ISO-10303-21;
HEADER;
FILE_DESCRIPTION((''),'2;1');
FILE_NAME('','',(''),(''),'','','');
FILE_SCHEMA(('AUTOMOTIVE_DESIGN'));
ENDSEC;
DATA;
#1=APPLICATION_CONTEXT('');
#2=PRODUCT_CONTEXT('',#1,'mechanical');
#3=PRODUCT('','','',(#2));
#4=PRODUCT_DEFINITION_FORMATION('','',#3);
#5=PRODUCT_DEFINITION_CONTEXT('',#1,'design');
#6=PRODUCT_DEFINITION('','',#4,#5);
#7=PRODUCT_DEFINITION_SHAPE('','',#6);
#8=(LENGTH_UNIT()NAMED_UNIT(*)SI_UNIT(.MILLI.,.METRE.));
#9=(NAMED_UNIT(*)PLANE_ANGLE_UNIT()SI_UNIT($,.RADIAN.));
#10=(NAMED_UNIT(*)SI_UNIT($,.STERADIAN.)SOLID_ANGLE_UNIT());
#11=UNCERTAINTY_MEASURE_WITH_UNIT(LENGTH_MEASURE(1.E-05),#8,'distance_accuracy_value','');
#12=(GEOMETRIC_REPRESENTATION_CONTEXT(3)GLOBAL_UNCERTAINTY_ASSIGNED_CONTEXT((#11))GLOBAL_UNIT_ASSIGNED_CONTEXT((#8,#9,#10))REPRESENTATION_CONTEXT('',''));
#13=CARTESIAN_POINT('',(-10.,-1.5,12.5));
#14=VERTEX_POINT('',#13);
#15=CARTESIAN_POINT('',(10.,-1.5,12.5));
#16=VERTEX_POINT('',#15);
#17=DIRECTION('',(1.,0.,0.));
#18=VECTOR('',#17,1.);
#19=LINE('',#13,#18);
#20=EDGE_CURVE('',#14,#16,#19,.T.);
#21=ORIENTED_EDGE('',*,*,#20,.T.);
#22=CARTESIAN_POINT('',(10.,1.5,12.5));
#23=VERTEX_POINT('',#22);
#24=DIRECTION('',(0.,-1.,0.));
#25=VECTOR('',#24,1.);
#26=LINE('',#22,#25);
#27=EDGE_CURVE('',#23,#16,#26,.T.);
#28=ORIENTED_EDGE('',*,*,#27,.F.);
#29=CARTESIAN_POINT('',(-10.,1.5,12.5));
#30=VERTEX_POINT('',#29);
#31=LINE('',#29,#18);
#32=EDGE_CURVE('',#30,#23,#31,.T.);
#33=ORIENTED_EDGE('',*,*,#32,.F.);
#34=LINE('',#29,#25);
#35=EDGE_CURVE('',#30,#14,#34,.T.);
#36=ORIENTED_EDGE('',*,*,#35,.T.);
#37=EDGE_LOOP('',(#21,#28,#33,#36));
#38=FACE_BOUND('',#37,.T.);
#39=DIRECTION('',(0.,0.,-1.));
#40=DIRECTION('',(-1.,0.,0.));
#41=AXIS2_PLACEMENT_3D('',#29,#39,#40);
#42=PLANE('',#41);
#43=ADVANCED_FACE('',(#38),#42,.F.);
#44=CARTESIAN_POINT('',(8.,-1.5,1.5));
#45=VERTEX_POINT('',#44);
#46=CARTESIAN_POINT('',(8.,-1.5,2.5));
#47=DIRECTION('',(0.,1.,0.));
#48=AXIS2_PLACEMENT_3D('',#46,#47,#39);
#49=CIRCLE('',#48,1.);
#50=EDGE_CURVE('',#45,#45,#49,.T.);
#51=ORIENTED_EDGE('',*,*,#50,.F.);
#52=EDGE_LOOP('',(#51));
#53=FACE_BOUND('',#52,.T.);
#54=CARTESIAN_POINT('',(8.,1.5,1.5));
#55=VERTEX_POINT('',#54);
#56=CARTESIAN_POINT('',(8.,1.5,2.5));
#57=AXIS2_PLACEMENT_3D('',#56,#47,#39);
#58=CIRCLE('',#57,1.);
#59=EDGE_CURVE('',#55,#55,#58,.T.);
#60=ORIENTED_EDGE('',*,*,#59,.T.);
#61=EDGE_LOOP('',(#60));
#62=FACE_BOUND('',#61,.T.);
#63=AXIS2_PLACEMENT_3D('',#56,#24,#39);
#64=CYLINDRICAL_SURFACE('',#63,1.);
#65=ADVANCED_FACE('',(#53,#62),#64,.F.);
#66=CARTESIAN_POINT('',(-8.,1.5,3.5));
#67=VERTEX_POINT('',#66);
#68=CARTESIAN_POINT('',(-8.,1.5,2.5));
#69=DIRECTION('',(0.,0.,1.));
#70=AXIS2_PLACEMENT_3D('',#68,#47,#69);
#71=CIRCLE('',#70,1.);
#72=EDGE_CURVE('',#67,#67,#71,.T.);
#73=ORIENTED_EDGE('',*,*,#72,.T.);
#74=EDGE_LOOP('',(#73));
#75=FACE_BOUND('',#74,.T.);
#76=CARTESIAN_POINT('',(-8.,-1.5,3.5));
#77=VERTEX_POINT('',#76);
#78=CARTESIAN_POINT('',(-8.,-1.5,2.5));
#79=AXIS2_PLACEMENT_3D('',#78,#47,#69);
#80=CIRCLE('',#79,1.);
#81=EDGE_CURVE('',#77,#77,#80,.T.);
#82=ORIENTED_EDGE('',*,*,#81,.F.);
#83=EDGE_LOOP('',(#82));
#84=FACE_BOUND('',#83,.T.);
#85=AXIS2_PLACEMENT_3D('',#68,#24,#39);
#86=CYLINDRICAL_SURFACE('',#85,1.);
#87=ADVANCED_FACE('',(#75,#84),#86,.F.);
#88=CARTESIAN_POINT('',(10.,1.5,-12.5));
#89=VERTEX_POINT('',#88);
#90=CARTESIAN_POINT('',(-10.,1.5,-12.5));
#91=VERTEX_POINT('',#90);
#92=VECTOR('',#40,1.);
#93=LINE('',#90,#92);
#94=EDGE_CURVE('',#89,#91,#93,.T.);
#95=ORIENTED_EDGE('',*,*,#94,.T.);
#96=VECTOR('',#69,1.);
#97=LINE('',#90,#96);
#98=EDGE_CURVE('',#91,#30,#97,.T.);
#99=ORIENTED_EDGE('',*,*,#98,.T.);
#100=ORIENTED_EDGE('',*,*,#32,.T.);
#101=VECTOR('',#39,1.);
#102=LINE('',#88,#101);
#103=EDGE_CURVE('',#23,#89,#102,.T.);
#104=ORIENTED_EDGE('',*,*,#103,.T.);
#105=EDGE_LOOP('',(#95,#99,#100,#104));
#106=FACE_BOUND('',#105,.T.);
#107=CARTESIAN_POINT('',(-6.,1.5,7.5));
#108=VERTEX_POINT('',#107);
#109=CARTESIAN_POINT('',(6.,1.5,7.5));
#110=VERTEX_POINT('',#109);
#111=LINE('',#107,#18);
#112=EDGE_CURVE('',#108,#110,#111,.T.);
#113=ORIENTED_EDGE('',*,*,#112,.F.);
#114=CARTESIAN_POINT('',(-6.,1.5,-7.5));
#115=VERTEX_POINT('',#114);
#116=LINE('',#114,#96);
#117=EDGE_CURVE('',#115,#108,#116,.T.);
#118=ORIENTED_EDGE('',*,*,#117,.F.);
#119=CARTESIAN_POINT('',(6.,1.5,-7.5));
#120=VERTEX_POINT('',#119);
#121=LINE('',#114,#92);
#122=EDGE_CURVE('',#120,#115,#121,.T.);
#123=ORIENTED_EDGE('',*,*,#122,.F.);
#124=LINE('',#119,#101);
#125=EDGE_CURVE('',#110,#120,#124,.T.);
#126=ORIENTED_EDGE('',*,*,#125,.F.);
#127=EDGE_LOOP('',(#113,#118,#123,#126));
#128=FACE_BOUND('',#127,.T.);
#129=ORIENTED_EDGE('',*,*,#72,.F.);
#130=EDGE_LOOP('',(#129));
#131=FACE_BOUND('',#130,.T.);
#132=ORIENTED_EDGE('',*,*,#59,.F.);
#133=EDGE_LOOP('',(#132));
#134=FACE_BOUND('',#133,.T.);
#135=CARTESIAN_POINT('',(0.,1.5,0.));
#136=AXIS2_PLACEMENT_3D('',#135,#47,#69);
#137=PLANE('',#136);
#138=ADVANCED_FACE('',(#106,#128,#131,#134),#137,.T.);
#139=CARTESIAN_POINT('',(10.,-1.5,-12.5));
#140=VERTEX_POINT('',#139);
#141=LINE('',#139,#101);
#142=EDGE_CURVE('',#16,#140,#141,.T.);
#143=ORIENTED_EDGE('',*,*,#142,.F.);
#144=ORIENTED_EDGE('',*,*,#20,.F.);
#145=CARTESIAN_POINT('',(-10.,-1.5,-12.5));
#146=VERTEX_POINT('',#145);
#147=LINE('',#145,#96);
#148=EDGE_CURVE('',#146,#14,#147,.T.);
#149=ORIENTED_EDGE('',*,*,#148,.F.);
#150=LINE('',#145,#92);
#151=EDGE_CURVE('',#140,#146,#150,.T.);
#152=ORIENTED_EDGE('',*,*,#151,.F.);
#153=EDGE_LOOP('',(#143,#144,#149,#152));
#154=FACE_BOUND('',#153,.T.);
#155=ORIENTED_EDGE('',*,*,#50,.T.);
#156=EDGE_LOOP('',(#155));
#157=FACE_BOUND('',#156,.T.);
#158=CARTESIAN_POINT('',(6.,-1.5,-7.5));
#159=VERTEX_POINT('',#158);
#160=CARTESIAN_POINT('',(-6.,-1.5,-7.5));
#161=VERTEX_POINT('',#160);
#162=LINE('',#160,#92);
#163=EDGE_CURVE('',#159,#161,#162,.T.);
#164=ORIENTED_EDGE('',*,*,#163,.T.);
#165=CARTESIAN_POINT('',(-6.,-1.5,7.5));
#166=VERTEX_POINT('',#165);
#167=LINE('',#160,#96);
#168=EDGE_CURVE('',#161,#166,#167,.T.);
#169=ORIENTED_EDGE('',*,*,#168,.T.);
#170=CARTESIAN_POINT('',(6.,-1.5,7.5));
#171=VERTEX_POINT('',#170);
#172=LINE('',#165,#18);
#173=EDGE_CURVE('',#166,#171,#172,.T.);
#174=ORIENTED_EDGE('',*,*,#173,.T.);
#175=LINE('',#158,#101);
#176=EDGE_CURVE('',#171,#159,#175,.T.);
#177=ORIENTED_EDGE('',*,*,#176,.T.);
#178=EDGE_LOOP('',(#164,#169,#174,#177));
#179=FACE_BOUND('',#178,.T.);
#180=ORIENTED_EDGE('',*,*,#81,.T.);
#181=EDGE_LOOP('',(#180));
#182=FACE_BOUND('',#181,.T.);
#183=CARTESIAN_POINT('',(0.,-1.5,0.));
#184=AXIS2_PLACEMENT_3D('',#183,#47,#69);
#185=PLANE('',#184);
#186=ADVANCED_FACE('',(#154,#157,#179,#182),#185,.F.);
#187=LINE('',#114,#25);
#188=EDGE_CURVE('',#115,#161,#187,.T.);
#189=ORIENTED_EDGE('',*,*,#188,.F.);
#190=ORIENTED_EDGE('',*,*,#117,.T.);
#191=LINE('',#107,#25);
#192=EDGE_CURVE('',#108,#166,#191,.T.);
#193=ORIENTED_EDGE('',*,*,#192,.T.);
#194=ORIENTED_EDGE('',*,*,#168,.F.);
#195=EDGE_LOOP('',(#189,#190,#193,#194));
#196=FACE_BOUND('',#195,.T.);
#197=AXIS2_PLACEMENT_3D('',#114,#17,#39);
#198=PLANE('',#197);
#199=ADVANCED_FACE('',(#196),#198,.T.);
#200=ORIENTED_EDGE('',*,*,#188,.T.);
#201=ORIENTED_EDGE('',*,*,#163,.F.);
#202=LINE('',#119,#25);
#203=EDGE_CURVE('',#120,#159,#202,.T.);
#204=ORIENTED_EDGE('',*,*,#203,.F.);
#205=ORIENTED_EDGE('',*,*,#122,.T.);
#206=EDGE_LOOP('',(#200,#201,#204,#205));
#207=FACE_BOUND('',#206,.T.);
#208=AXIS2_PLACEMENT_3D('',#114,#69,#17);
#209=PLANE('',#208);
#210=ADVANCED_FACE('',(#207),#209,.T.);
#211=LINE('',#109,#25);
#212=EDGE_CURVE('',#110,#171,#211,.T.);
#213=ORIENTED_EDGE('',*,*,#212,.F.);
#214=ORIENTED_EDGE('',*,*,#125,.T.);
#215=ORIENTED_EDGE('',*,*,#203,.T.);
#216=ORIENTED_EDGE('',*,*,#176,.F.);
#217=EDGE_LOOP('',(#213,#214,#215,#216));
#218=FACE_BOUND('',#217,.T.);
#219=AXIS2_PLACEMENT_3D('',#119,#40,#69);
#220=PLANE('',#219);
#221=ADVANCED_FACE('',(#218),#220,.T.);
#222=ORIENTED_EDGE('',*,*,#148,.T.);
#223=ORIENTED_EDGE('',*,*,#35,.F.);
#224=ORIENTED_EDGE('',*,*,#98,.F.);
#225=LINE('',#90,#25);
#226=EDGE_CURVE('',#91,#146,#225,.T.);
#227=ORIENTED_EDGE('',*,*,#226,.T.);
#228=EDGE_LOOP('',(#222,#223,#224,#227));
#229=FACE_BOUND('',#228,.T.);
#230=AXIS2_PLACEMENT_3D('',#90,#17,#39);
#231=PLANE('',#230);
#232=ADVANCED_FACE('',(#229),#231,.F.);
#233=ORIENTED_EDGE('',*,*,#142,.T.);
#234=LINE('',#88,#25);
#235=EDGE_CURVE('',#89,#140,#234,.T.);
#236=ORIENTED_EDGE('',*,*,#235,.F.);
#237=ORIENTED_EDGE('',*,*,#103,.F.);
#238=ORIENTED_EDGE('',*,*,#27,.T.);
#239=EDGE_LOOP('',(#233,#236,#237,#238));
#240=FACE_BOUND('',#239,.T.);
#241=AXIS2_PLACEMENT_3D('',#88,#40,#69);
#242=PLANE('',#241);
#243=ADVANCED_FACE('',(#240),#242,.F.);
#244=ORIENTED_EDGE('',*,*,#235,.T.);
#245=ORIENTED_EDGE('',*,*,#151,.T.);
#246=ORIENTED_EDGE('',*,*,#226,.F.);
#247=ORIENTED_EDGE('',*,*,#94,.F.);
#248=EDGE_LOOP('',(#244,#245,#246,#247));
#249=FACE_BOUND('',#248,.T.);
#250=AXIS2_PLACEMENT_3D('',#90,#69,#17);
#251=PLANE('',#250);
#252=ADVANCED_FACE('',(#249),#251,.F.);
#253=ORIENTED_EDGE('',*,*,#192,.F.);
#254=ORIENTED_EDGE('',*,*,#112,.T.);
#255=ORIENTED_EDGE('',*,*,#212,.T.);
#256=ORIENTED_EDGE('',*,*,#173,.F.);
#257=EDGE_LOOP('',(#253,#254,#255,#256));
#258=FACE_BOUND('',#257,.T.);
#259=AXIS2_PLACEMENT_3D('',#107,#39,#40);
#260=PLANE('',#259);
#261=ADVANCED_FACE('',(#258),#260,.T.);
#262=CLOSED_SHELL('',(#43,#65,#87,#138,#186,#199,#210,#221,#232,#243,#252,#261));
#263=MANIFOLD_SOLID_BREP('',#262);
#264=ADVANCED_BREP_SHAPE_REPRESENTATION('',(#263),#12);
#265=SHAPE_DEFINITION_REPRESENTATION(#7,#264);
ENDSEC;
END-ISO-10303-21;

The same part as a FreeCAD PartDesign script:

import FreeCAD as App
import Part
import Sketcher

V = App.Vector

doc = App.newDocument("Part")
params = doc.addObject("Spreadsheet::Sheet", "Params")
for row, (alias, value) in enumerate([
    ("sketch1_diameter", "2 mm"),
    ("sketch1_width", "20 mm"),
    ("sketch1_width2", "12 mm"),
    ("sketch1_height", "25 mm"),
    ("sketch1_height2", "15 mm"),
    ("pad1_length", "3 mm"),
], start=1):
    params.set(f"A{row}", alias)
    params.set(f"B{row}", "=" + value)
    params.setAlias(f"B{row}", alias)

body = doc.addObject("PartDesign::Body", "Body")

# Sketch on XZ plane
sketch1 = body.newObject("Sketcher::SketchObject", "Sketch")
sketch1.AttachmentSupport = (doc.getObject("XZ_Plane"), [""])
sketch1.MapMode = "FlatFace"
sketch1.addGeometry([
    Part.LineSegment(V(-10, -12.5, 0), V(-10, 12.5, 0)),  # 0
    Part.LineSegment(V(-10, 12.5, 0), V(10, 12.5, 0)),  # 1
    Part.LineSegment(V(10, 12.5, 0), V(10, -12.5, 0)),  # 2
    Part.LineSegment(V(10, -12.5, 0), V(-10, -12.5, 0)),  # 3
    Part.Circle(V(-8, 2.5, 0), V(0, 0, 1), 1),  # 4
    Part.Circle(V(8, 2.5, 0), V(0, 0, 1), 1),  # 5
    Part.LineSegment(V(6, 7.5, 0), V(-6, 7.5, 0)),  # 6
    Part.LineSegment(V(-6, 7.5, 0), V(-6, -7.5, 0)),  # 7
    Part.LineSegment(V(-6, -7.5, 0), V(6, -7.5, 0)),  # 8
    Part.LineSegment(V(6, -7.5, 0), V(6, 7.5, 0)),  # 9
], False)
sketch1.addConstraint([
    Sketcher.Constraint("Coincident", 0, 2, 1, 1),
    Sketcher.Constraint("Coincident", 1, 2, 2, 1),
    Sketcher.Constraint("Coincident", 2, 2, 3, 1),
    Sketcher.Constraint("Coincident", 3, 2, 0, 1),
    Sketcher.Constraint("Coincident", 6, 2, 7, 1),
    Sketcher.Constraint("Coincident", 7, 2, 8, 1),
    Sketcher.Constraint("Coincident", 8, 2, 9, 1),
    Sketcher.Constraint("Coincident", 9, 2, 6, 1),
    Sketcher.Constraint("Vertical", 0),
    Sketcher.Constraint("Horizontal", 1),
    Sketcher.Constraint("Vertical", 2),
    Sketcher.Constraint("Horizontal", 3),
    Sketcher.Constraint("Horizontal", 6),
    Sketcher.Constraint("Vertical", 7),
    Sketcher.Constraint("Horizontal", 8),
    Sketcher.Constraint("Vertical", 9),
    Sketcher.Constraint("Equal", 4, 5),
    Sketcher.Constraint("Symmetric", 0, 2, 2, 2, -1, 1),
    Sketcher.Constraint("Symmetric", 6, 2, 8, 2, -1, 1),
    Sketcher.Constraint("Symmetric", 4, 3, 5, 3, -2),
    Sketcher.Constraint("Diameter", 4, 2.0),
    Sketcher.Constraint("DistanceX", 1, 1, 1, 2, 20.0),
    Sketcher.Constraint("DistanceX", 6, 2, 6, 1, 12.0),
    Sketcher.Constraint("DistanceY", 0, 1, 0, 2, 25.0),
    Sketcher.Constraint("DistanceY", 7, 2, 7, 1, 15.0),
    Sketcher.Constraint("DistanceX", 4, 3, -1, 1, 8.0),
    Sketcher.Constraint("DistanceY", 4, 3, 0, 2, 10.0),
])
sketch1.setExpression("Constraints[20]", "Params.sketch1_diameter")
sketch1.setExpression("Constraints[21]", "Params.sketch1_width")
sketch1.setExpression("Constraints[22]", "Params.sketch1_width2")
sketch1.setExpression("Constraints[23]", "Params.sketch1_height")
sketch1.setExpression("Constraints[24]", "Params.sketch1_height2")
pad1 = body.newObject("PartDesign::Pad", "Pad")
pad1.Profile = sketch1
pad1.setExpression("Length", "Params.pad1_length")
pad1.Midplane = True

doc.recompute()
